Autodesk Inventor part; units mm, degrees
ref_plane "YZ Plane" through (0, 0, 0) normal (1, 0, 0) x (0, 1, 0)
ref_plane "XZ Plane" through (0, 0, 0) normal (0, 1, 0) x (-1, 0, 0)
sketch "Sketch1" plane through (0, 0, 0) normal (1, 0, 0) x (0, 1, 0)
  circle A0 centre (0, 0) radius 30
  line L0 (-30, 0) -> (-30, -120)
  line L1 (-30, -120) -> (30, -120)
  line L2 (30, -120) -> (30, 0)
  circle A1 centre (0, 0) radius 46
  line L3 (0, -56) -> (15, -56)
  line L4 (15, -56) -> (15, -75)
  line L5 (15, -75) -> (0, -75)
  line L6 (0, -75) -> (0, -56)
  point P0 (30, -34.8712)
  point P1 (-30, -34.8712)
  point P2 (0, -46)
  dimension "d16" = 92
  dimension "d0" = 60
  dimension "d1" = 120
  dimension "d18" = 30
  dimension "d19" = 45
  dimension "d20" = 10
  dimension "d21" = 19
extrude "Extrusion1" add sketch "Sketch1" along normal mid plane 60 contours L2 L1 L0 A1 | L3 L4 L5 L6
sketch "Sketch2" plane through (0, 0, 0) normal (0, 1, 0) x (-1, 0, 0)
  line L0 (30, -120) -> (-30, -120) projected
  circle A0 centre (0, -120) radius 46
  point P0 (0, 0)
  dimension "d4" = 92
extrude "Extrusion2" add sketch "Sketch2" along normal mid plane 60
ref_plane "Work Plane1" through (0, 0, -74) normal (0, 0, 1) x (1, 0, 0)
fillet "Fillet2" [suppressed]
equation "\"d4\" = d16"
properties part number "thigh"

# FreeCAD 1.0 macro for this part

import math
import FreeCAD as App
import Part
import Sketcher
from FreeCAD import Vector

doc = App.newDocument("Part")
body = doc.addObject("PartDesign::Body", "Body")

# Sketch on YZ plane
sketch1 = body.newObject("Sketcher::SketchObject", "Sketch")
sketch1.AttachmentSupport = (doc.getObject("YZ_Plane"), [""])
sketch1.MapMode = "FlatFace"
sketch1.addGeometry(Part.LineSegment(Vector(30, -120, 0), Vector(30, -34.871192, 0)), False)
sketch1.addGeometry(Part.ArcOfCircle(Part.Circle(Vector(0, 0, 0), Vector(0, 0, 1), 46), math.radians(-130.705707), math.radians(-49.294293)), False)
sketch1.addGeometry(Part.LineSegment(Vector(-30, -34.871192, 0), Vector(-30, -120, 0)), False)
sketch1.addGeometry(Part.LineSegment(Vector(-30, -120, 0), Vector(30, -120, 0)), False)
sketch1.addConstraint(Sketcher.Constraint("Coincident", 0, 2, 1, 2))
sketch1.addConstraint(Sketcher.Constraint("Coincident", 1, 1, 2, 1))
sketch1.addConstraint(Sketcher.Constraint("Coincident", 2, 2, 3, 1))
sketch1.addConstraint(Sketcher.Constraint("Coincident", 3, 2, 0, 1))
sketch1.addConstraint(Sketcher.Constraint("Vertical", 0))
sketch1.addConstraint(Sketcher.Constraint("Vertical", 2))
sketch1.addConstraint(Sketcher.Constraint("Horizontal", 3))
sketch1.addConstraint(Sketcher.Constraint("Coincident", 1, 3, -1, 1))
sketch1.addConstraint(Sketcher.Constraint("Horizontal", 0, 2, 1, 1))
sketch1.addConstraint(Sketcher.Constraint("Radius", 1, 46.0))
sketch1.addConstraint(Sketcher.Constraint("DistanceX", 3, 1, 3, 2, 60.0))
sketch1.addConstraint(Sketcher.Constraint("DistanceY", 2, 2, -1, 1, 120.0))
pad1 = body.newObject("PartDesign::Pad", "Pad")
pad1.Profile = sketch1
pad1.Length = 60
pad1.Midplane = True

# Sketch on XZ plane
sketch2 = body.newObject("Sketcher::SketchObject", "Sketch001")
sketch2.AttachmentSupport = (doc.getObject("XZ_Plane"), [""])
sketch2.MapMode = "FlatFace"
sketch2.addGeometry(Part.Circle(Vector(0, -120, 0), Vector(0, 0, 1), 46), False)
sketch2.addConstraint(Sketcher.Constraint("PointOnObject", 0, 3, -2))
sketch2.addConstraint(Sketcher.Constraint("Diameter", 0, 92.0))
sketch2.addConstraint(Sketcher.Constraint("DistanceY", 0, 3, -1, 1, 120.0))
pad2 = body.newObject("PartDesign::Pad", "Pad001")
pad2.Profile = sketch2
pad2.Length = 60
pad2.Midplane = True

doc.recompute()
